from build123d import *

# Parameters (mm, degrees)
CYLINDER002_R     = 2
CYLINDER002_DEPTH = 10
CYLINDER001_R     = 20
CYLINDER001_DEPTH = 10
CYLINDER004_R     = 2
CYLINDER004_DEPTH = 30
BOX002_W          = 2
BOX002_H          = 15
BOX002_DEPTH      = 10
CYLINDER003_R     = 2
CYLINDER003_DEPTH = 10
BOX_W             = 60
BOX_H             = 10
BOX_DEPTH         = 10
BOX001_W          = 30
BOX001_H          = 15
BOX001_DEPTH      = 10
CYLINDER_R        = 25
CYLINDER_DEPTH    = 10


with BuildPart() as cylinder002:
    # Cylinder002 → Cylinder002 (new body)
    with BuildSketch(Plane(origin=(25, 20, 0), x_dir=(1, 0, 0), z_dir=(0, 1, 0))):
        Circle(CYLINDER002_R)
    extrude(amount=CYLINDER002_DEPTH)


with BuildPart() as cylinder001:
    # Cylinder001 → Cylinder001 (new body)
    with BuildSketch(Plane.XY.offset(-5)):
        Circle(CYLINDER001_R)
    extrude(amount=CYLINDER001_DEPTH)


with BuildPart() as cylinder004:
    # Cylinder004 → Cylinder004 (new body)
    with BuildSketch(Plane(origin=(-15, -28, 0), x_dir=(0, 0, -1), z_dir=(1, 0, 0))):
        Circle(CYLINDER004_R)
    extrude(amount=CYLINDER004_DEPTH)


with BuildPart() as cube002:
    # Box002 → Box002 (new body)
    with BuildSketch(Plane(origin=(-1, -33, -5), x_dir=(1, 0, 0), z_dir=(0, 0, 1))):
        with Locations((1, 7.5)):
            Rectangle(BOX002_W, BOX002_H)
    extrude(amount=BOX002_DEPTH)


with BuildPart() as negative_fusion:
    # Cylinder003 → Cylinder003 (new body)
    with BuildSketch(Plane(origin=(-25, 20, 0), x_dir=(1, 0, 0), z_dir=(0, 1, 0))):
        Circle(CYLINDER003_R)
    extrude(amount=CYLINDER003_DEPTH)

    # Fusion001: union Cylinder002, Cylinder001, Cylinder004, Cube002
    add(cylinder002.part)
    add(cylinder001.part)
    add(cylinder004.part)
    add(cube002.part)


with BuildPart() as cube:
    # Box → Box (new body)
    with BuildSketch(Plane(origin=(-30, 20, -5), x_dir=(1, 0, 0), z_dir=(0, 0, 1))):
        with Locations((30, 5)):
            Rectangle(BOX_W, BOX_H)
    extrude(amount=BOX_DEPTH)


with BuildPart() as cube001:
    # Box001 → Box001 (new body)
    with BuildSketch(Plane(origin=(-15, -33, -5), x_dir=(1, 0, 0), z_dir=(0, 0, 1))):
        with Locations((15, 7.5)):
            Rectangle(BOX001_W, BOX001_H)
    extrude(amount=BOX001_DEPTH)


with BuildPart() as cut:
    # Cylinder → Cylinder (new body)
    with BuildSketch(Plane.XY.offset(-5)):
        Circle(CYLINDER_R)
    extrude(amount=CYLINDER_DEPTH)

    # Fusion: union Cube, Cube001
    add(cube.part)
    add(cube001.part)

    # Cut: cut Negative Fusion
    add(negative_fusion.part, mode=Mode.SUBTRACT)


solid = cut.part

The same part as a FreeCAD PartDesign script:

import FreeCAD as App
import Part
import Sketcher

doc = App.newDocument("Part")
body = doc.addObject("PartDesign::Body", "Body")

# Sketch on XZ plane
sketch1 = doc.addObject("Sketcher::SketchObject", "Sketch")
body.addObject(sketch1)
sketch1.AttachmentSupport = (doc.XZ_Plane, [""])
sketch1.MapMode = "FlatFace"
sketch1.AttachmentOffset = App.Placement(App.Vector(0, 0, -20), App.Rotation())
sketch1.addGeometry(Part.Circle(App.Vector(25, 0, 0), App.Vector(0, 0, 1), 2), False)
sketch1.addConstraint(Sketcher.Constraint("PointOnObject", 0, 3, -1))
sketch1.addConstraint(Sketcher.Constraint("Diameter", 0, 4.0))
sketch1.addConstraint(Sketcher.Constraint("DistanceX", -1, 1, 0, 3, 25.0))
pad1 = doc.addObject("PartDesign::Pad", "Pad")
body.addObject(pad1)
pad1.Profile = sketch1
pad1.Length = 10
pad1.Reversed = True
body2 = doc.addObject("PartDesign::Body", "Body001")

# Sketch on XY plane
sketch2 = doc.addObject("Sketcher::SketchObject", "Sketch001")
body2.addObject(sketch2)
sketch2.AttachmentSupport = (doc.getObject("XY_Plane001"), [""])
sketch2.MapMode = "FlatFace"
sketch2.AttachmentOffset = App.Placement(App.Vector(0, 0, -5), App.Rotation())
sketch2.addGeometry(Part.Circle(App.Vector(0, 0, 0), App.Vector(0, 0, 1), 20), False)
sketch2.addConstraint(Sketcher.Constraint("Coincident", 0, 3, -1, 1))
sketch2.addConstraint(Sketcher.Constraint("Diameter", 0, 40.0))
pad2 = doc.addObject("PartDesign::Pad", "Pad001")
body2.addObject(pad2)
pad2.Profile = sketch2
pad2.Length = 10
body3 = doc.addObject("PartDesign::Body", "Body002")

# Sketch on YZ plane
sketch3 = doc.addObject("Sketcher::SketchObject", "Sketch002")
body3.addObject(sketch3)
sketch3.AttachmentSupport = (doc.getObject("YZ_Plane002"), [""])
sketch3.MapMode = "FlatFace"
sketch3.AttachmentOffset = App.Placement(App.Vector(0, 0, -15), App.Rotation())
sketch3.addGeometry(Part.Circle(App.Vector(-28, 0, 0), App.Vector(0, 0, 1), 2), False)
sketch3.addConstraint(Sketcher.Constraint("PointOnObject", 0, 3, -1))
sketch3.addConstraint(Sketcher.Constraint("Diameter", 0, 4.0))
sketch3.addConstraint(Sketcher.Constraint("DistanceX", 0, 3, -1, 1, 28.0))
pad3 = doc.addObject("PartDesign::Pad", "Pad002")
body3.addObject(pad3)
pad3.Profile = sketch3
pad3.Length = 30
body4 = doc.addObject("PartDesign::Body", "Body003")

# Sketch on XY plane
sketch4 = doc.addObject("Sketcher::SketchObject", "Sketch003")
body4.addObject(sketch4)
sketch4.AttachmentSupport = (doc.getObject("XY_Plane003"), [""])
sketch4.MapMode = "FlatFace"
sketch4.AttachmentOffset = App.Placement(App.Vector(0, 0, -5), App.Rotation())
sketch4.addGeometry(Part.LineSegment(App.Vector(-1, -18, 0), App.Vector(-1, -33, 0)), False)
sketch4.addGeometry(Part.LineSegment(App.Vector(-1, -33, 0), App.Vector(1, -33, 0)), False)
sketch4.addGeometry(Part.LineSegment(App.Vector(1, -33, 0), App.Vector(1, -18, 0)), False)
sketch4.addGeometry(Part.LineSegment(App.Vector(1, -18, 0), App.Vector(-1, -18, 0)), False)
sketch4.addConstraint(Sketcher.Constraint("Coincident", 0, 2, 1, 1))
sketch4.addConstraint(Sketcher.Constraint("Coincident", 1, 2, 2, 1))
sketch4.addConstraint(Sketcher.Constraint("Coincident", 2, 2, 3, 1))
sketch4.addConstraint(Sketcher.Constraint("Coincident", 3, 2, 0, 1))
sketch4.addConstraint(Sketcher.Constraint("Vertical", 0))
sketch4.addConstraint(Sketcher.Constraint("Horizontal", 1))
sketch4.addConstraint(Sketcher.Constraint("Vertical", 2))
sketch4.addConstraint(Sketcher.Constraint("Horizontal", 3))
sketch4.addConstraint(Sketcher.Constraint("DistanceX", 1, 1, 1, 2, 2.0))
sketch4.addConstraint(Sketcher.Constraint("DistanceY", 0, 2, 0, 1, 15.0))
sketch4.addConstraint(Sketcher.Constraint("DistanceX", 0, 2, -1, 1, 1.0))
sketch4.addConstraint(Sketcher.Constraint("DistanceY", 0, 2, -1, 1, 33.0))
pad4 = doc.addObject("PartDesign::Pad", "Pad003")
body4.addObject(pad4)
pad4.Profile = sketch4
pad4.Length = 10
body5 = doc.addObject("PartDesign::Body", "Body004")
body5.AllowCompound = True

# Sketch on XZ plane
sketch5 = doc.addObject("Sketcher::SketchObject", "Sketch004")
body5.addObject(sketch5)
sketch5.AttachmentSupport = (doc.getObject("XZ_Plane004"), [""])
sketch5.MapMode = "FlatFace"
sketch5.AttachmentOffset = App.Placement(App.Vector(0, 0, -20), App.Rotation())
sketch5.addGeometry(Part.Circle(App.Vector(-25, 0, 0), App.Vector(0, 0, 1), 2), False)
sketch5.addConstraint(Sketcher.Constraint("PointOnObject", 0, 3, -1))
sketch5.addConstraint(Sketcher.Constraint("Diameter", 0, 4.0))
sketch5.addConstraint(Sketcher.Constraint("DistanceX", 0, 3, -1, 1, 25.0))
pad5 = doc.addObject("PartDesign::Pad", "Pad004")
body5.addObject(pad5)
pad5.Profile = sketch5
pad5.Length = 10
pad5.Reversed = True
doc.recompute()

boolean = doc.addObject("PartDesign::Boolean", "Boolean")
body5.addObject(boolean)
boolean.Type = "Fuse"
boolean.addObjects([body])
doc.recompute()

boolean2 = doc.addObject("PartDesign::Boolean", "Boolean001")
body5.addObject(boolean2)
boolean2.Type = "Fuse"
boolean2.addObjects([body2])
doc.recompute()

boolean3 = doc.addObject("PartDesign::Boolean", "Boolean002")
body5.addObject(boolean3)
boolean3.Type = "Fuse"
boolean3.addObjects([body3])
doc.recompute()

boolean4 = doc.addObject("PartDesign::Boolean", "Boolean003")
body5.addObject(boolean4)
boolean4.Type = "Fuse"
boolean4.addObjects([body4])
body6 = doc.addObject("PartDesign::Body", "Body005")

# Sketch on XY plane
sketch6 = doc.addObject("Sketcher::SketchObject", "Sketch005")
body6.addObject(sketch6)
sketch6.AttachmentSupport = (doc.getObject("XY_Plane005"), [""])
sketch6.MapMode = "FlatFace"
sketch6.AttachmentOffset = App.Placement(App.Vector(0, 0, -5), App.Rotation())
sketch6.addGeometry(Part.LineSegment(App.Vector(-30, 30, 0), App.Vector(-30, 20, 0)), False)
sketch6.addGeometry(Part.LineSegment(App.Vector(-30, 20, 0), App.Vector(30, 20, 0)), False)
sketch6.addGeometry(Part.LineSegment(App.Vector(30, 20, 0), App.Vector(30, 30, 0)), False)
sketch6.addGeometry(Part.LineSegment(App.Vector(30, 30, 0), App.Vector(-30, 30, 0)), False)
sketch6.addConstraint(Sketcher.Constraint("Coincident", 0, 2, 1, 1))
sketch6.addConstraint(Sketcher.Constraint("Coincident", 1, 2, 2, 1))
sketch6.addConstraint(Sketcher.Constraint("Coincident", 2, 2, 3, 1))
sketch6.addConstraint(Sketcher.Constraint("Coincident", 3, 2, 0, 1))
sketch6.addConstraint(Sketcher.Constraint("Vertical", 0))
sketch6.addConstraint(Sketcher.Constraint("Horizontal", 1))
sketch6.addConstraint(Sketcher.Constraint("Vertical", 2))
sketch6.addConstraint(Sketcher.Constraint("Horizontal", 3))
sketch6.addConstraint(Sketcher.Constraint("DistanceX", 1, 1, 1, 2, 60.0))
sketch6.addConstraint(Sketcher.Constraint("DistanceY", 0, 2, 0, 1, 10.0))
sketch6.addConstraint(Sketcher.Constraint("DistanceX", 0, 2, -1, 1, 30.0))
sketch6.addConstraint(Sketcher.Constraint("DistanceY", -1, 1, 0, 2, 20.0))
pad6 = doc.addObject("PartDesign::Pad", "Pad005")
body6.addObject(pad6)
pad6.Profile = sketch6
pad6.Length = 10
body7 = doc.addObject("PartDesign::Body", "Body006")

# Sketch on XY plane
sketch7 = doc.addObject("Sketcher::SketchObject", "Sketch006")
body7.addObject(sketch7)
sketch7.AttachmentSupport = (doc.getObject("XY_Plane006"), [""])
sketch7.MapMode = "FlatFace"
sketch7.AttachmentOffset = App.Placement(App.Vector(0, 0, -5), App.Rotation())
sketch7.addGeometry(Part.LineSegment(App.Vector(-15, -18, 0), App.Vector(-15, -33, 0)), False)
sketch7.addGeometry(Part.LineSegment(App.Vector(-15, -33, 0), App.Vector(15, -33, 0)), False)
sketch7.addGeometry(Part.LineSegment(App.Vector(15, -33, 0), App.Vector(15, -18, 0)), False)
sketch7.addGeometry(Part.LineSegment(App.Vector(15, -18, 0), App.Vector(-15, -18, 0)), False)
sketch7.addConstraint(Sketcher.Constraint("Coincident", 0, 2, 1, 1))
sketch7.addConstraint(Sketcher.Constraint("Coincident", 1, 2, 2, 1))
sketch7.addConstraint(Sketcher.Constraint("Coincident", 2, 2, 3, 1))
sketch7.addConstraint(Sketcher.Constraint("Coincident", 3, 2, 0, 1))
sketch7.addConstraint(Sketcher.Constraint("Vertical", 0))
sketch7.addConstraint(Sketcher.Constraint("Horizontal", 1))
sketch7.addConstraint(Sketcher.Constraint("Vertical", 2))
sketch7.addConstraint(Sketcher.Constraint("Horizontal", 3))
sketch7.addConstraint(Sketcher.Constraint("DistanceX", 1, 1, 1, 2, 30.0))
sketch7.addConstraint(Sketcher.Constraint("DistanceY", 0, 2, 0, 1, 15.0))
sketch7.addConstraint(Sketcher.Constraint("DistanceX", 0, 2, -1, 1, 15.0))
sketch7.addConstraint(Sketcher.Constraint("DistanceY", 0, 2, -1, 1, 33.0))
pad7 = doc.addObject("PartDesign::Pad", "Pad006")
body7.addObject(pad7)
pad7.Profile = sketch7
pad7.Length = 10
body8 = doc.addObject("PartDesign::Body", "Body007")

# Sketch on XY plane
sketch8 = doc.addObject("Sketcher::SketchObject", "Sketch007")
body8.addObject(sketch8)
sketch8.AttachmentSupport = (doc.getObject("XY_Plane007"), [""])
sketch8.MapMode = "FlatFace"
sketch8.AttachmentOffset = App.Placement(App.Vector(0, 0, -5), App.Rotation())
sketch8.addGeometry(Part.Circle(App.Vector(0, 0, 0), App.Vector(0, 0, 1), 25), False)
sketch8.addConstraint(Sketcher.Constraint("Coincident", 0, 3, -1, 1))
sketch8.addConstraint(Sketcher.Constraint("Diameter", 0, 50.0))
pad8 = doc.addObject("PartDesign::Pad", "Pad007")
body8.addObject(pad8)
pad8.Profile = sketch8
pad8.Length = 10
doc.recompute()

boolean5 = doc.addObject("PartDesign::Boolean", "Boolean004")
body8.addObject(boolean5)
boolean5.Type = "Fuse"
boolean5.addObjects([body6])
doc.recompute()

boolean6 = doc.addObject("PartDesign::Boolean", "Boolean005")
body8.addObject(boolean6)
boolean6.Type = "Fuse"
boolean6.addObjects([body7])
doc.recompute()

boolean7 = doc.addObject("PartDesign::Boolean", "Boolean006")
body8.addObject(boolean7)
boolean7.Type = "Cut"
boolean7.addObjects([body5])

doc.recompute()
